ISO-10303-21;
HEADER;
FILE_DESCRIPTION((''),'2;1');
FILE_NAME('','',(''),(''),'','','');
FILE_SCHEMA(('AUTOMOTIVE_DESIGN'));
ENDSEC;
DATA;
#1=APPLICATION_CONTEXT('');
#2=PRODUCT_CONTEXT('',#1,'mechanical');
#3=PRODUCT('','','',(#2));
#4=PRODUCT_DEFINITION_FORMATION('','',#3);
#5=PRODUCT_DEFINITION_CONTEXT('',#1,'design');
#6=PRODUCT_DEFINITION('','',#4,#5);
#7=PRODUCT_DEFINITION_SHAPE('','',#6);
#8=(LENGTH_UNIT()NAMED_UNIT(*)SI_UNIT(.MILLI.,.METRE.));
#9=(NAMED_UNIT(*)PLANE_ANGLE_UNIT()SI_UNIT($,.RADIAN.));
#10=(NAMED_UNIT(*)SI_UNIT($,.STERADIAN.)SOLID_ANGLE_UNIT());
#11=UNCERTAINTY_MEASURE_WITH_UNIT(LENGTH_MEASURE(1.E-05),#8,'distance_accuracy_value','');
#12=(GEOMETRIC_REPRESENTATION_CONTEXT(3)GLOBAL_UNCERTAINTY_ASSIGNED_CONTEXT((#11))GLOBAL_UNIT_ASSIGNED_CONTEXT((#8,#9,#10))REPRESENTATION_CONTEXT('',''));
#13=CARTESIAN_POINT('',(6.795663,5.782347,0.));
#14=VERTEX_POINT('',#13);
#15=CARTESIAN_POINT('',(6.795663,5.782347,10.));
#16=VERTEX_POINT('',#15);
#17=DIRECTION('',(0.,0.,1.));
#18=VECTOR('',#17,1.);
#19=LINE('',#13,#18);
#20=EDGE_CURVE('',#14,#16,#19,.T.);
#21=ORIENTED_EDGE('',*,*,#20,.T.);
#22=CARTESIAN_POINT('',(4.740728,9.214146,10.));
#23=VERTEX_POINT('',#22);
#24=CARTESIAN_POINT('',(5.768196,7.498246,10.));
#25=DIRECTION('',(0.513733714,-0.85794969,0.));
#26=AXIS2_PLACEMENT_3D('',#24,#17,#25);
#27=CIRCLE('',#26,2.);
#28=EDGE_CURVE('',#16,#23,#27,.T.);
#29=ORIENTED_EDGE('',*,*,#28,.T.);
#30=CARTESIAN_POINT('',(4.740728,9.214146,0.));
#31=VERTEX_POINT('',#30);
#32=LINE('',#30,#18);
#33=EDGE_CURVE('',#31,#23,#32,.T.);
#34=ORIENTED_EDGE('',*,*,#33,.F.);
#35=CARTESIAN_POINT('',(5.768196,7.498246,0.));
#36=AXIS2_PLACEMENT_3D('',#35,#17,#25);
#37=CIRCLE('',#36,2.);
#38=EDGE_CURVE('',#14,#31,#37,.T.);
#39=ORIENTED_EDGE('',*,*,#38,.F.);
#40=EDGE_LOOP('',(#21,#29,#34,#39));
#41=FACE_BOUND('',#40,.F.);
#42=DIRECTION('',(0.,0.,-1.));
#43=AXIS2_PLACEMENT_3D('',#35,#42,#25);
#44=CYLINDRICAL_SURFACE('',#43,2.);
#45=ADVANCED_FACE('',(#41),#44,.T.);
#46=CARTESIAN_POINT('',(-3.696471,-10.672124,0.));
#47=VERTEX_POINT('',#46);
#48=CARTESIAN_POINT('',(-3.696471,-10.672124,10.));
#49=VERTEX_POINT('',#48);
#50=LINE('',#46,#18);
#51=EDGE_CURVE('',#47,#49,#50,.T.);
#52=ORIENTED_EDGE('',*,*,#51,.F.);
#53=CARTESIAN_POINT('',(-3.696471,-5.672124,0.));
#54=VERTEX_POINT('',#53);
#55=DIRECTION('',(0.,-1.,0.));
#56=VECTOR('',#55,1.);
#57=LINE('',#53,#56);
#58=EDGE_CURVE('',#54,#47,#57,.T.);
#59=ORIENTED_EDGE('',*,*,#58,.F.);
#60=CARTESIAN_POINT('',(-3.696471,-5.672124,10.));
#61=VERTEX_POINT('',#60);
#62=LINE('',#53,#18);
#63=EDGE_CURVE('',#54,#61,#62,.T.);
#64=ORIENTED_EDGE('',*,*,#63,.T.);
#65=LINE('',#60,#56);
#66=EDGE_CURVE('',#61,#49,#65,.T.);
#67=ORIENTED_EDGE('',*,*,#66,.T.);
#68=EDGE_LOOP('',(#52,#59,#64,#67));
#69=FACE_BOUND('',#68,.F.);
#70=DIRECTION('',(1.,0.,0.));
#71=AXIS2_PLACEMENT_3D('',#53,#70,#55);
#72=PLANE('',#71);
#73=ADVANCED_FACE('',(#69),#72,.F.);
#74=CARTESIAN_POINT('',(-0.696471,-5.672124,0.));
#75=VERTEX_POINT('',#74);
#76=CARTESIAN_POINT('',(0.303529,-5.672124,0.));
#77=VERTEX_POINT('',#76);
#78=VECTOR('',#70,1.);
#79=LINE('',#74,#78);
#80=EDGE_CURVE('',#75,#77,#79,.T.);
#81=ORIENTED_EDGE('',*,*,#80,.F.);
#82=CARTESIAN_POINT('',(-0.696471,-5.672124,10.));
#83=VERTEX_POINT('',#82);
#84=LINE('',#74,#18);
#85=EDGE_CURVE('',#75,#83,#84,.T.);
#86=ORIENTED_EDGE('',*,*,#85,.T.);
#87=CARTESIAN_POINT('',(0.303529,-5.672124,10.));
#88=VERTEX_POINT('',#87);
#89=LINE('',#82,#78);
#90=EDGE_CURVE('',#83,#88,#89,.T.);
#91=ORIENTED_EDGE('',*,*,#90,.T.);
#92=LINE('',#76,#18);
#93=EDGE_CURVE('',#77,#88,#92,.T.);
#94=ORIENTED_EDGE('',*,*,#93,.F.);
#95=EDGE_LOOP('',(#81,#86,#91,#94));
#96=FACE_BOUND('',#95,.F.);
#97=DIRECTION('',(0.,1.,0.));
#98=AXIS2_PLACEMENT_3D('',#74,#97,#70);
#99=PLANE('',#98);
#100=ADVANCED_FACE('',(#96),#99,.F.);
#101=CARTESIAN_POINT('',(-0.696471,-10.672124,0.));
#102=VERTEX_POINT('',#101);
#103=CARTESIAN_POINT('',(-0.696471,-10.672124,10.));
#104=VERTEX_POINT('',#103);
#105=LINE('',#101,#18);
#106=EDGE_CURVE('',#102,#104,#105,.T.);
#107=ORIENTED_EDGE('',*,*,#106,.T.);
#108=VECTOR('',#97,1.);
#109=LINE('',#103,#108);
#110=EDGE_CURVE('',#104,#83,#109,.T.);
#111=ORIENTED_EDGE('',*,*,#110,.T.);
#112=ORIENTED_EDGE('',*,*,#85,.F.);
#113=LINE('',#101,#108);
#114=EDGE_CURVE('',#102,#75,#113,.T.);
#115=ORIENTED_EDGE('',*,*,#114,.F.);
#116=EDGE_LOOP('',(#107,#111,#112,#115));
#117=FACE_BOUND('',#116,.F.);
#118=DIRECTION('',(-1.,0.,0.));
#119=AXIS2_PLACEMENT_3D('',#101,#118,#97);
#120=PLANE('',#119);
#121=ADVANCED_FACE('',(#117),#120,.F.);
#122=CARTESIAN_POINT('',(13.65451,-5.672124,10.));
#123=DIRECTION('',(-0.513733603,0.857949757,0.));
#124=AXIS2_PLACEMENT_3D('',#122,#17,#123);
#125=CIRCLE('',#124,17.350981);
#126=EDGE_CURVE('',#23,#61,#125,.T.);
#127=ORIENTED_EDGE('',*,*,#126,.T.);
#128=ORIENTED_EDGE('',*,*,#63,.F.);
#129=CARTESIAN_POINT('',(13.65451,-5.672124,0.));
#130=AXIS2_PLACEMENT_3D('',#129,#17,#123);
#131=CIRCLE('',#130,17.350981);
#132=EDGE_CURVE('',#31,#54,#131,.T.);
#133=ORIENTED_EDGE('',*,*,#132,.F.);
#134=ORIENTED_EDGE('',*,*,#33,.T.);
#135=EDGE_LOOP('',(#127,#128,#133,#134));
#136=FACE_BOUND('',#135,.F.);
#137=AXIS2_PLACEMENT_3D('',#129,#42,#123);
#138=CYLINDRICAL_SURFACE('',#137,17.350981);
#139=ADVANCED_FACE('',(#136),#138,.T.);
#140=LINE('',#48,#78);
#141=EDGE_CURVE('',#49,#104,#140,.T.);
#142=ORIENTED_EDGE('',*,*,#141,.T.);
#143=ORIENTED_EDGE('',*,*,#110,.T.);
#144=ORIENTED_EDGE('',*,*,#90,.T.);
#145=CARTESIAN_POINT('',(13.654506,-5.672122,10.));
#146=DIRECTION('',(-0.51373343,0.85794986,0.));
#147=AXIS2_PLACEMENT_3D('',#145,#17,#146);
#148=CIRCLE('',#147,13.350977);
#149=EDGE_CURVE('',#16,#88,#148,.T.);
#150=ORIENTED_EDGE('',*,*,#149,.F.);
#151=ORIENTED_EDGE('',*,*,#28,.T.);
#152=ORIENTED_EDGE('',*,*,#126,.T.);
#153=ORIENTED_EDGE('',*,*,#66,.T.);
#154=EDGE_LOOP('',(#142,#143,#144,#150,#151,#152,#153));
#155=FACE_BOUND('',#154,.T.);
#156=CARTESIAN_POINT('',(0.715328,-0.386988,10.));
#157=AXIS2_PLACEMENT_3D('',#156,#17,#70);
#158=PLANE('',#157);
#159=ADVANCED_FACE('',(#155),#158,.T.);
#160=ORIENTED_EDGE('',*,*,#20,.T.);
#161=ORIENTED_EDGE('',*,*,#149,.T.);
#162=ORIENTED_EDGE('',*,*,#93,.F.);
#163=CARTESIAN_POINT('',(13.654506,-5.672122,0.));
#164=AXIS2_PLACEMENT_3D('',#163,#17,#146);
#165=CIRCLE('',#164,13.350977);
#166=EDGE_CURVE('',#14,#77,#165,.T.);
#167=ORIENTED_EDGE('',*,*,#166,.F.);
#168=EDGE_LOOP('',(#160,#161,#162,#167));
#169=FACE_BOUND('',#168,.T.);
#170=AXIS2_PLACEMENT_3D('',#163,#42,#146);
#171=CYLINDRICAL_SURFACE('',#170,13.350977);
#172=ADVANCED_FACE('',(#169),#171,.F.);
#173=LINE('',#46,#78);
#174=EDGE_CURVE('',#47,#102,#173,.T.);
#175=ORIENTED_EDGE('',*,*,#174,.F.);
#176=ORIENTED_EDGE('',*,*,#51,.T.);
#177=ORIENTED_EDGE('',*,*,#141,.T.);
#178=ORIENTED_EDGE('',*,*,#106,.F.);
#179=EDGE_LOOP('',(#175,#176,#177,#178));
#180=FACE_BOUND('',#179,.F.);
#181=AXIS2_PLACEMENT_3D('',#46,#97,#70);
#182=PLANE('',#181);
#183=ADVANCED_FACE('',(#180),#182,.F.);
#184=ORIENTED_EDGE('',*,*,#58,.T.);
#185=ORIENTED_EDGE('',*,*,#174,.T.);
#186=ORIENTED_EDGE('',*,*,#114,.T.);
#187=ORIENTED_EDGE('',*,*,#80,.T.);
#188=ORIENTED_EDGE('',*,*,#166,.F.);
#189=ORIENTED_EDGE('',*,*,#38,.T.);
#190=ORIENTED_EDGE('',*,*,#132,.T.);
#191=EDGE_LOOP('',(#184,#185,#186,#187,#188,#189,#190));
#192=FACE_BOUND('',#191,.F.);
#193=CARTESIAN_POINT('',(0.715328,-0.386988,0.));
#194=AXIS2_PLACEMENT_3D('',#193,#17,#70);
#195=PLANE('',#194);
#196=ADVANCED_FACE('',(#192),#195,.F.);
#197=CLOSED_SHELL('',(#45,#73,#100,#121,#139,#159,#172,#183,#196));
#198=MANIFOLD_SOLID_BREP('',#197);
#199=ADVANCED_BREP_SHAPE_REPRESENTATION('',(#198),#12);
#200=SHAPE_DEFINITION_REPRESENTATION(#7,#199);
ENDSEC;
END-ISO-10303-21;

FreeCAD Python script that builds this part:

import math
import FreeCAD as App
import Part
import Sketcher
Q = App.Units.Quantity

doc = App.newDocument("Part")
body = doc.addObject("PartDesign::Body", "Body")

sketch1 = doc.addObject("Sketcher::SketchObject", "Sketch")
body.addObject(sketch1)
sketch1.AttachmentSupport = (doc.XY_Plane, [""])
sketch1.MapMode = "FlatFace"
sketch1.addGeometry([
    Part.LineSegment(App.Vector(-3.7, -10.7, 0), App.Vector(-0.7, -10.7, 0)),
    Part.LineSegment(App.Vector(-0.7, -10.7, 0), App.Vector(-0.7, -5.7, 0)),
    Part.LineSegment(App.Vector(-0.7, -5.7, 0), App.Vector(0.3, -5.7, 0)),
    Part.ArcOfCircle(Part.Circle(App.Vector(13.7, -5.7, 0), App.Vector(0, 0, 1), 13.4), math.radians(121), math.radians(180)),
    Part.ArcOfCircle(Part.Circle(App.Vector(5.8, 7.5, 0), App.Vector(0, 0, 1), 2), math.radians(-59), math.radians(121)),
    Part.ArcOfCircle(Part.Circle(App.Vector(13.7, -5.7, 0), App.Vector(0, 0, 1), 17.4), math.radians(121), math.radians(180)),
    Part.LineSegment(App.Vector(-3.7, -5.7, 0), App.Vector(-3.7, -10.7, 0)),
], False)
sketch1.addConstraint([
    Sketcher.Constraint("Coincident", 0, 2, 1, 1),
    Sketcher.Constraint("Coincident", 1, 2, 2, 1),
    Sketcher.Constraint("Coincident", 2, 2, 3, 2),
    Sketcher.Constraint("Tangent", 3, 1, 4, 1),
    Sketcher.Constraint("Tangent", 4, 2, 5, 1),
    Sketcher.Constraint("Tangent", 5, 2, 6, 1),
    Sketcher.Constraint("Coincident", 6, 2, 0, 1),
    Sketcher.Constraint("Horizontal", 0),
    Sketcher.Constraint("Vertical", 1),
    Sketcher.Constraint("Horizontal", 2),
    Sketcher.Constraint("Vertical", 6),
    Sketcher.Constraint("Coincident", 5, 3, 3, 3),
    Sketcher.Constraint("Horizontal", 5, 3, 1, 2),
    Sketcher.Constraint("Radius", 4, Q("2 mm")),
    Sketcher.Constraint("DistanceX", 0, 1, 0, 2, Q("3 mm")),
    Sketcher.Constraint("DistanceY", 1, 1, 1, 2, Q("5 mm")),
    Sketcher.Constraint("Radius", 5, Q("17.350981 mm")),
    Sketcher.Constraint("DistanceY", 3, 1, 4, 3, Q("1.715899 mm")),
    Sketcher.Constraint("DistanceX", -1, 1, 5, 3, Q("13.65451 mm")),
    Sketcher.Constraint("DistanceY", 3, 3, -1, 1, Q("5.672122 mm")),
])
pad1 = doc.addObject("PartDesign::Pad", "Pad")
body.addObject(pad1)
pad1.Profile = sketch1
pad1.Length = 10

doc.recompute()
